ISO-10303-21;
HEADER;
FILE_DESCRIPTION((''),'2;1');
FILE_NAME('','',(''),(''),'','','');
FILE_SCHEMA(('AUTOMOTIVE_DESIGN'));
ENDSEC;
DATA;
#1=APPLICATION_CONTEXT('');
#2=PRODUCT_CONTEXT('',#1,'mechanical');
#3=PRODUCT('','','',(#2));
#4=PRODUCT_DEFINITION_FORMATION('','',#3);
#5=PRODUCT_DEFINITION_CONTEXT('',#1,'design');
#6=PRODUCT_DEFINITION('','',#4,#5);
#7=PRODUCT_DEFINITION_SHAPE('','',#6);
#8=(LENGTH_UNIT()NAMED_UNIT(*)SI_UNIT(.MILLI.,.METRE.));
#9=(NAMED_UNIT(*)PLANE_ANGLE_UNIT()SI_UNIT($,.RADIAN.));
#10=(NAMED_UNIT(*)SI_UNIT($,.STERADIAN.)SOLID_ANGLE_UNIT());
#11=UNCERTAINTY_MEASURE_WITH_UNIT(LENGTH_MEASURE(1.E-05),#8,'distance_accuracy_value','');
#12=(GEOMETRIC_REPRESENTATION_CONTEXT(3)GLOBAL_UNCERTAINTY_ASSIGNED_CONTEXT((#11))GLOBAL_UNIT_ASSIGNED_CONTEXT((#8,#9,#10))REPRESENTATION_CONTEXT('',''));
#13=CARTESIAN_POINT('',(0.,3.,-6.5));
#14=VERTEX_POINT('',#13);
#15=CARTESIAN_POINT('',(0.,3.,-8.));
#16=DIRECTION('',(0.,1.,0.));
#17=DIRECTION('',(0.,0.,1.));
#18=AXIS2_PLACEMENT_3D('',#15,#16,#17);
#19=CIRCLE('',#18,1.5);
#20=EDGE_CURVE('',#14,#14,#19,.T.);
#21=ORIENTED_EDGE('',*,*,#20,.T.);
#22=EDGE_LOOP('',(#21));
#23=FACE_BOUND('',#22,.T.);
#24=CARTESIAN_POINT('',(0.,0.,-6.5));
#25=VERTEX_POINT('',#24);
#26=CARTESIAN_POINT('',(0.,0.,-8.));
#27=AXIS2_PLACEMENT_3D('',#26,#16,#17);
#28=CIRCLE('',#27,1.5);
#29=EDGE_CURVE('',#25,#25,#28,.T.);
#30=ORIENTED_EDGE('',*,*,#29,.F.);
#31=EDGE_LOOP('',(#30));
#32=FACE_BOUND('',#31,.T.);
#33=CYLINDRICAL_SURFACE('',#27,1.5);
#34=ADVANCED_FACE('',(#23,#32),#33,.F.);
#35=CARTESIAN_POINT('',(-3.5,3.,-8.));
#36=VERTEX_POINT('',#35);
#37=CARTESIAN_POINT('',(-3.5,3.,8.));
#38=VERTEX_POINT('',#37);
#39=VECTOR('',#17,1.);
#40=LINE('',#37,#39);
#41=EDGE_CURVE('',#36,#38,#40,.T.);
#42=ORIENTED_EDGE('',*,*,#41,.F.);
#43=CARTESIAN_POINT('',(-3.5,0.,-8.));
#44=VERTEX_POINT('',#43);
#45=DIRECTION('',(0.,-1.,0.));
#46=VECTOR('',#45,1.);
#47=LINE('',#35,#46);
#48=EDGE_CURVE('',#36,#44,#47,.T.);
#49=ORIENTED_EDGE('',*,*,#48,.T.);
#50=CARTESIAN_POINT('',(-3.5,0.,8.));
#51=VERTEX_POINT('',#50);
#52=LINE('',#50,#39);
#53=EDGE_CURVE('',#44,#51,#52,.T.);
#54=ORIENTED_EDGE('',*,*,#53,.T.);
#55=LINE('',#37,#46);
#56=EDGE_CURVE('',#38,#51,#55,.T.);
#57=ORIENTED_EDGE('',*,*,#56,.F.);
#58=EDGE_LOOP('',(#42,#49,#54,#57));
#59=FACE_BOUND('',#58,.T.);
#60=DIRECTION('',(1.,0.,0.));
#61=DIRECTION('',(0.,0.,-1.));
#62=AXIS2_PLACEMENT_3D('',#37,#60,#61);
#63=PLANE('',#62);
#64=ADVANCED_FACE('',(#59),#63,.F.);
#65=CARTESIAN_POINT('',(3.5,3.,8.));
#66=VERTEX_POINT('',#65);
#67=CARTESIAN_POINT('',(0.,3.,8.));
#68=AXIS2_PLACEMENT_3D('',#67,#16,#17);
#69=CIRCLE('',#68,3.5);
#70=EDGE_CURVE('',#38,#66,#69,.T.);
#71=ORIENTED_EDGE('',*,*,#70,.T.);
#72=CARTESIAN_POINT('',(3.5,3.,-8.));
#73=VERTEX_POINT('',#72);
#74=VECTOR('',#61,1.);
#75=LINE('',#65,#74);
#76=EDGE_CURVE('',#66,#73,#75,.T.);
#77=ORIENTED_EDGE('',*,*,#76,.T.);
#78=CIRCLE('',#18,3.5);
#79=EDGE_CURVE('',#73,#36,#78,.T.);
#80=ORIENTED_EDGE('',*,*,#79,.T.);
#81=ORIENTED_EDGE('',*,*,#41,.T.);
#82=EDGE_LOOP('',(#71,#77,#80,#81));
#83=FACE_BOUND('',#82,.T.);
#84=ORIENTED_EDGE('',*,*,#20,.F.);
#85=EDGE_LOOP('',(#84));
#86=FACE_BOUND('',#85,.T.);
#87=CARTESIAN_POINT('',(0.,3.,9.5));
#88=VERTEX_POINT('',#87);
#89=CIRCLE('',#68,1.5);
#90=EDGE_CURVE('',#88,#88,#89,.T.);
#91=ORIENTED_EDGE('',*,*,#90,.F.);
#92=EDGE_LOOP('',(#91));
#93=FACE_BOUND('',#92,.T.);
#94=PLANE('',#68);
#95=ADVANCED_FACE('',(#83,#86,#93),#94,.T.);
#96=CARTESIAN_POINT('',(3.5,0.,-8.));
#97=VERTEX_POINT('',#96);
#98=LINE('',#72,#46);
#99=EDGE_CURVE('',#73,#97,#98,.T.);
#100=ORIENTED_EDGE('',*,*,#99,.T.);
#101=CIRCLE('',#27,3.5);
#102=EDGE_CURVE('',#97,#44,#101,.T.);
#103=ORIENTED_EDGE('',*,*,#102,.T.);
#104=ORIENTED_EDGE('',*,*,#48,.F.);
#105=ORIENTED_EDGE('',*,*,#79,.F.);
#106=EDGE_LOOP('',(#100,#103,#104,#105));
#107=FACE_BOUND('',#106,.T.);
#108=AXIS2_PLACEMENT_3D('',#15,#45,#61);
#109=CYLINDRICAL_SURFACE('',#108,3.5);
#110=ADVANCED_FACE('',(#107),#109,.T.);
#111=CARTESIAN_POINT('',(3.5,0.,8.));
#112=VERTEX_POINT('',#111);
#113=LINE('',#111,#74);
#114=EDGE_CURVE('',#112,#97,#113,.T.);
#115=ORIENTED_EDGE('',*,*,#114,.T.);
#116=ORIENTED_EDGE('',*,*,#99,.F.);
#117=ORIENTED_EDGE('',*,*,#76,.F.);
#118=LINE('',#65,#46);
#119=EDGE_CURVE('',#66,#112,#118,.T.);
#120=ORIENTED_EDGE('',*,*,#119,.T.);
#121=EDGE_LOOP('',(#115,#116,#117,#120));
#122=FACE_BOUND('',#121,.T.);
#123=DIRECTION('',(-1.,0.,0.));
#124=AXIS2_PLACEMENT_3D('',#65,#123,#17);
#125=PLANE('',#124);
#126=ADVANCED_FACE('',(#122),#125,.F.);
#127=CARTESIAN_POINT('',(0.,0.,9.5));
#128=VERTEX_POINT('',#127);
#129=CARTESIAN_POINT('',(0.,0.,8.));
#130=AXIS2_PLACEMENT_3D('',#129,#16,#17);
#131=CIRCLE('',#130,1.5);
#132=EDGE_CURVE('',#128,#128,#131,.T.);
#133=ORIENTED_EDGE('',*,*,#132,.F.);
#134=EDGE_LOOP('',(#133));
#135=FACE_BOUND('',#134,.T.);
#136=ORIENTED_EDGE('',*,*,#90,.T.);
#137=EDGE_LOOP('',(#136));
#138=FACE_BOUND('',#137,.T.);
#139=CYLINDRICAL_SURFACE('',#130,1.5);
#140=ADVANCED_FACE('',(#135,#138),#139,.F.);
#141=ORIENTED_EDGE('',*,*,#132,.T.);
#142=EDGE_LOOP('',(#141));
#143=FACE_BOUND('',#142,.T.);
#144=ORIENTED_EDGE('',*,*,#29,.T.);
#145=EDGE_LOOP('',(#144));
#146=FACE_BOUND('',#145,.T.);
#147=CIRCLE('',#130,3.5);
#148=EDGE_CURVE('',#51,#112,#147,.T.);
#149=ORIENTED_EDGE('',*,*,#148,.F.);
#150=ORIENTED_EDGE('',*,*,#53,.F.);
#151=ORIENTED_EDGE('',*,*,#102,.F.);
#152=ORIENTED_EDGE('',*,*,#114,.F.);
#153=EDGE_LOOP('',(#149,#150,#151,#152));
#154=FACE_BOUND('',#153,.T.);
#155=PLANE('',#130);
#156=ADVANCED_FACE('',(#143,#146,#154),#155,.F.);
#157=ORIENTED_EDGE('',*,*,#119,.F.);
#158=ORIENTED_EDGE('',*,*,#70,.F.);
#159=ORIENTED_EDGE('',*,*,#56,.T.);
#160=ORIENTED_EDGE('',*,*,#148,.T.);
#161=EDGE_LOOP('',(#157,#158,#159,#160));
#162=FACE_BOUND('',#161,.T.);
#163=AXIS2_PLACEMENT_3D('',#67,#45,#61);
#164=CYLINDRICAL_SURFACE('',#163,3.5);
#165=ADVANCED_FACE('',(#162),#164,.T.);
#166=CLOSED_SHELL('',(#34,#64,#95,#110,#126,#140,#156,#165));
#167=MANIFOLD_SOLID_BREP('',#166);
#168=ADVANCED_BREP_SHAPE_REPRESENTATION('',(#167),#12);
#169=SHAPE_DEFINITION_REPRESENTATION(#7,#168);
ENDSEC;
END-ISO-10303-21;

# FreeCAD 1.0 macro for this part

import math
import FreeCAD as App
import Part
import Sketcher

V = App.Vector

doc = App.newDocument("Part")
body = doc.addObject("PartDesign::Body", "Body")

sketch1 = body.newObject("Sketcher::SketchObject", "Sketch")
sketch1.AttachmentSupport = (doc.getObject("XZ_Plane"), [""])
sketch1.MapMode = "FlatFace"
sketch1.addGeometry([
    Part.LineSegment(V(-3.5, -8, 0), V(-3.5, 8, 0)),
    Part.ArcOfCircle(Part.Circle(V(0, 8, 0), V(0, 0, 1), 3.5), math.radians(0), math.radians(180)),
    Part.LineSegment(V(3.5, 8, 0), V(3.5, -8, 0)),
    Part.ArcOfCircle(Part.Circle(V(0, -8, 0), V(0, 0, 1), 3.5), math.radians(180), math.radians(360)),
], False)
sketch1.addConstraint([
    Sketcher.Constraint("Tangent", 0, 2, 1, 2),
    Sketcher.Constraint("Tangent", 1, 1, 2, 1),
    Sketcher.Constraint("Tangent", 2, 2, 3, 2),
    Sketcher.Constraint("Tangent", 3, 1, 0, 1),
    Sketcher.Constraint("Vertical", 0),
    Sketcher.Constraint("Vertical", 2),
    Sketcher.Constraint("Symmetric", 1, 3, 3, 3, -1, 1),
    Sketcher.Constraint("Radius", 1, 3.5),
    Sketcher.Constraint("DistanceY", 0, 1, 0, 2, 16.0),
])
pad1 = body.newObject("PartDesign::Pad", "Pad")
pad1.Profile = sketch1
pad1.Length = 3
pad1.Reversed = True

sketch2 = body.newObject("Sketcher::SketchObject", "Sketch001")
sketch2.AttachmentSupport = (doc.getObject("XZ_Plane"), [""])
sketch2.MapMode = "FlatFace"
sketch2.AttachmentOffset = App.Placement(V(0, 0, -3), App.Rotation())
sketch2.addGeometry([
    Part.Circle(V(0, -8, 0), V(0, 0, 1), 1.5),
    Part.Circle(V(0, 8, 0), V(0, 0, 1), 1.5),
], False)
sketch2.addConstraint([
    Sketcher.Constraint("Equal", 0, 1),
    Sketcher.Constraint("Symmetric", 0, 3, 1, 3, -1, 1),
    Sketcher.Constraint("PointOnObject", 0, 3, -2),
    Sketcher.Constraint("Diameter", 0, 3.0),
    Sketcher.Constraint("DistanceY", 0, 3, -1, 1, 8.0),
])
pocket1 = body.newObject("PartDesign::Pocket", "Pocket")
pocket1.Profile = sketch2
pocket1.Length = 3
pocket1.Reversed = True

doc.recompute()
